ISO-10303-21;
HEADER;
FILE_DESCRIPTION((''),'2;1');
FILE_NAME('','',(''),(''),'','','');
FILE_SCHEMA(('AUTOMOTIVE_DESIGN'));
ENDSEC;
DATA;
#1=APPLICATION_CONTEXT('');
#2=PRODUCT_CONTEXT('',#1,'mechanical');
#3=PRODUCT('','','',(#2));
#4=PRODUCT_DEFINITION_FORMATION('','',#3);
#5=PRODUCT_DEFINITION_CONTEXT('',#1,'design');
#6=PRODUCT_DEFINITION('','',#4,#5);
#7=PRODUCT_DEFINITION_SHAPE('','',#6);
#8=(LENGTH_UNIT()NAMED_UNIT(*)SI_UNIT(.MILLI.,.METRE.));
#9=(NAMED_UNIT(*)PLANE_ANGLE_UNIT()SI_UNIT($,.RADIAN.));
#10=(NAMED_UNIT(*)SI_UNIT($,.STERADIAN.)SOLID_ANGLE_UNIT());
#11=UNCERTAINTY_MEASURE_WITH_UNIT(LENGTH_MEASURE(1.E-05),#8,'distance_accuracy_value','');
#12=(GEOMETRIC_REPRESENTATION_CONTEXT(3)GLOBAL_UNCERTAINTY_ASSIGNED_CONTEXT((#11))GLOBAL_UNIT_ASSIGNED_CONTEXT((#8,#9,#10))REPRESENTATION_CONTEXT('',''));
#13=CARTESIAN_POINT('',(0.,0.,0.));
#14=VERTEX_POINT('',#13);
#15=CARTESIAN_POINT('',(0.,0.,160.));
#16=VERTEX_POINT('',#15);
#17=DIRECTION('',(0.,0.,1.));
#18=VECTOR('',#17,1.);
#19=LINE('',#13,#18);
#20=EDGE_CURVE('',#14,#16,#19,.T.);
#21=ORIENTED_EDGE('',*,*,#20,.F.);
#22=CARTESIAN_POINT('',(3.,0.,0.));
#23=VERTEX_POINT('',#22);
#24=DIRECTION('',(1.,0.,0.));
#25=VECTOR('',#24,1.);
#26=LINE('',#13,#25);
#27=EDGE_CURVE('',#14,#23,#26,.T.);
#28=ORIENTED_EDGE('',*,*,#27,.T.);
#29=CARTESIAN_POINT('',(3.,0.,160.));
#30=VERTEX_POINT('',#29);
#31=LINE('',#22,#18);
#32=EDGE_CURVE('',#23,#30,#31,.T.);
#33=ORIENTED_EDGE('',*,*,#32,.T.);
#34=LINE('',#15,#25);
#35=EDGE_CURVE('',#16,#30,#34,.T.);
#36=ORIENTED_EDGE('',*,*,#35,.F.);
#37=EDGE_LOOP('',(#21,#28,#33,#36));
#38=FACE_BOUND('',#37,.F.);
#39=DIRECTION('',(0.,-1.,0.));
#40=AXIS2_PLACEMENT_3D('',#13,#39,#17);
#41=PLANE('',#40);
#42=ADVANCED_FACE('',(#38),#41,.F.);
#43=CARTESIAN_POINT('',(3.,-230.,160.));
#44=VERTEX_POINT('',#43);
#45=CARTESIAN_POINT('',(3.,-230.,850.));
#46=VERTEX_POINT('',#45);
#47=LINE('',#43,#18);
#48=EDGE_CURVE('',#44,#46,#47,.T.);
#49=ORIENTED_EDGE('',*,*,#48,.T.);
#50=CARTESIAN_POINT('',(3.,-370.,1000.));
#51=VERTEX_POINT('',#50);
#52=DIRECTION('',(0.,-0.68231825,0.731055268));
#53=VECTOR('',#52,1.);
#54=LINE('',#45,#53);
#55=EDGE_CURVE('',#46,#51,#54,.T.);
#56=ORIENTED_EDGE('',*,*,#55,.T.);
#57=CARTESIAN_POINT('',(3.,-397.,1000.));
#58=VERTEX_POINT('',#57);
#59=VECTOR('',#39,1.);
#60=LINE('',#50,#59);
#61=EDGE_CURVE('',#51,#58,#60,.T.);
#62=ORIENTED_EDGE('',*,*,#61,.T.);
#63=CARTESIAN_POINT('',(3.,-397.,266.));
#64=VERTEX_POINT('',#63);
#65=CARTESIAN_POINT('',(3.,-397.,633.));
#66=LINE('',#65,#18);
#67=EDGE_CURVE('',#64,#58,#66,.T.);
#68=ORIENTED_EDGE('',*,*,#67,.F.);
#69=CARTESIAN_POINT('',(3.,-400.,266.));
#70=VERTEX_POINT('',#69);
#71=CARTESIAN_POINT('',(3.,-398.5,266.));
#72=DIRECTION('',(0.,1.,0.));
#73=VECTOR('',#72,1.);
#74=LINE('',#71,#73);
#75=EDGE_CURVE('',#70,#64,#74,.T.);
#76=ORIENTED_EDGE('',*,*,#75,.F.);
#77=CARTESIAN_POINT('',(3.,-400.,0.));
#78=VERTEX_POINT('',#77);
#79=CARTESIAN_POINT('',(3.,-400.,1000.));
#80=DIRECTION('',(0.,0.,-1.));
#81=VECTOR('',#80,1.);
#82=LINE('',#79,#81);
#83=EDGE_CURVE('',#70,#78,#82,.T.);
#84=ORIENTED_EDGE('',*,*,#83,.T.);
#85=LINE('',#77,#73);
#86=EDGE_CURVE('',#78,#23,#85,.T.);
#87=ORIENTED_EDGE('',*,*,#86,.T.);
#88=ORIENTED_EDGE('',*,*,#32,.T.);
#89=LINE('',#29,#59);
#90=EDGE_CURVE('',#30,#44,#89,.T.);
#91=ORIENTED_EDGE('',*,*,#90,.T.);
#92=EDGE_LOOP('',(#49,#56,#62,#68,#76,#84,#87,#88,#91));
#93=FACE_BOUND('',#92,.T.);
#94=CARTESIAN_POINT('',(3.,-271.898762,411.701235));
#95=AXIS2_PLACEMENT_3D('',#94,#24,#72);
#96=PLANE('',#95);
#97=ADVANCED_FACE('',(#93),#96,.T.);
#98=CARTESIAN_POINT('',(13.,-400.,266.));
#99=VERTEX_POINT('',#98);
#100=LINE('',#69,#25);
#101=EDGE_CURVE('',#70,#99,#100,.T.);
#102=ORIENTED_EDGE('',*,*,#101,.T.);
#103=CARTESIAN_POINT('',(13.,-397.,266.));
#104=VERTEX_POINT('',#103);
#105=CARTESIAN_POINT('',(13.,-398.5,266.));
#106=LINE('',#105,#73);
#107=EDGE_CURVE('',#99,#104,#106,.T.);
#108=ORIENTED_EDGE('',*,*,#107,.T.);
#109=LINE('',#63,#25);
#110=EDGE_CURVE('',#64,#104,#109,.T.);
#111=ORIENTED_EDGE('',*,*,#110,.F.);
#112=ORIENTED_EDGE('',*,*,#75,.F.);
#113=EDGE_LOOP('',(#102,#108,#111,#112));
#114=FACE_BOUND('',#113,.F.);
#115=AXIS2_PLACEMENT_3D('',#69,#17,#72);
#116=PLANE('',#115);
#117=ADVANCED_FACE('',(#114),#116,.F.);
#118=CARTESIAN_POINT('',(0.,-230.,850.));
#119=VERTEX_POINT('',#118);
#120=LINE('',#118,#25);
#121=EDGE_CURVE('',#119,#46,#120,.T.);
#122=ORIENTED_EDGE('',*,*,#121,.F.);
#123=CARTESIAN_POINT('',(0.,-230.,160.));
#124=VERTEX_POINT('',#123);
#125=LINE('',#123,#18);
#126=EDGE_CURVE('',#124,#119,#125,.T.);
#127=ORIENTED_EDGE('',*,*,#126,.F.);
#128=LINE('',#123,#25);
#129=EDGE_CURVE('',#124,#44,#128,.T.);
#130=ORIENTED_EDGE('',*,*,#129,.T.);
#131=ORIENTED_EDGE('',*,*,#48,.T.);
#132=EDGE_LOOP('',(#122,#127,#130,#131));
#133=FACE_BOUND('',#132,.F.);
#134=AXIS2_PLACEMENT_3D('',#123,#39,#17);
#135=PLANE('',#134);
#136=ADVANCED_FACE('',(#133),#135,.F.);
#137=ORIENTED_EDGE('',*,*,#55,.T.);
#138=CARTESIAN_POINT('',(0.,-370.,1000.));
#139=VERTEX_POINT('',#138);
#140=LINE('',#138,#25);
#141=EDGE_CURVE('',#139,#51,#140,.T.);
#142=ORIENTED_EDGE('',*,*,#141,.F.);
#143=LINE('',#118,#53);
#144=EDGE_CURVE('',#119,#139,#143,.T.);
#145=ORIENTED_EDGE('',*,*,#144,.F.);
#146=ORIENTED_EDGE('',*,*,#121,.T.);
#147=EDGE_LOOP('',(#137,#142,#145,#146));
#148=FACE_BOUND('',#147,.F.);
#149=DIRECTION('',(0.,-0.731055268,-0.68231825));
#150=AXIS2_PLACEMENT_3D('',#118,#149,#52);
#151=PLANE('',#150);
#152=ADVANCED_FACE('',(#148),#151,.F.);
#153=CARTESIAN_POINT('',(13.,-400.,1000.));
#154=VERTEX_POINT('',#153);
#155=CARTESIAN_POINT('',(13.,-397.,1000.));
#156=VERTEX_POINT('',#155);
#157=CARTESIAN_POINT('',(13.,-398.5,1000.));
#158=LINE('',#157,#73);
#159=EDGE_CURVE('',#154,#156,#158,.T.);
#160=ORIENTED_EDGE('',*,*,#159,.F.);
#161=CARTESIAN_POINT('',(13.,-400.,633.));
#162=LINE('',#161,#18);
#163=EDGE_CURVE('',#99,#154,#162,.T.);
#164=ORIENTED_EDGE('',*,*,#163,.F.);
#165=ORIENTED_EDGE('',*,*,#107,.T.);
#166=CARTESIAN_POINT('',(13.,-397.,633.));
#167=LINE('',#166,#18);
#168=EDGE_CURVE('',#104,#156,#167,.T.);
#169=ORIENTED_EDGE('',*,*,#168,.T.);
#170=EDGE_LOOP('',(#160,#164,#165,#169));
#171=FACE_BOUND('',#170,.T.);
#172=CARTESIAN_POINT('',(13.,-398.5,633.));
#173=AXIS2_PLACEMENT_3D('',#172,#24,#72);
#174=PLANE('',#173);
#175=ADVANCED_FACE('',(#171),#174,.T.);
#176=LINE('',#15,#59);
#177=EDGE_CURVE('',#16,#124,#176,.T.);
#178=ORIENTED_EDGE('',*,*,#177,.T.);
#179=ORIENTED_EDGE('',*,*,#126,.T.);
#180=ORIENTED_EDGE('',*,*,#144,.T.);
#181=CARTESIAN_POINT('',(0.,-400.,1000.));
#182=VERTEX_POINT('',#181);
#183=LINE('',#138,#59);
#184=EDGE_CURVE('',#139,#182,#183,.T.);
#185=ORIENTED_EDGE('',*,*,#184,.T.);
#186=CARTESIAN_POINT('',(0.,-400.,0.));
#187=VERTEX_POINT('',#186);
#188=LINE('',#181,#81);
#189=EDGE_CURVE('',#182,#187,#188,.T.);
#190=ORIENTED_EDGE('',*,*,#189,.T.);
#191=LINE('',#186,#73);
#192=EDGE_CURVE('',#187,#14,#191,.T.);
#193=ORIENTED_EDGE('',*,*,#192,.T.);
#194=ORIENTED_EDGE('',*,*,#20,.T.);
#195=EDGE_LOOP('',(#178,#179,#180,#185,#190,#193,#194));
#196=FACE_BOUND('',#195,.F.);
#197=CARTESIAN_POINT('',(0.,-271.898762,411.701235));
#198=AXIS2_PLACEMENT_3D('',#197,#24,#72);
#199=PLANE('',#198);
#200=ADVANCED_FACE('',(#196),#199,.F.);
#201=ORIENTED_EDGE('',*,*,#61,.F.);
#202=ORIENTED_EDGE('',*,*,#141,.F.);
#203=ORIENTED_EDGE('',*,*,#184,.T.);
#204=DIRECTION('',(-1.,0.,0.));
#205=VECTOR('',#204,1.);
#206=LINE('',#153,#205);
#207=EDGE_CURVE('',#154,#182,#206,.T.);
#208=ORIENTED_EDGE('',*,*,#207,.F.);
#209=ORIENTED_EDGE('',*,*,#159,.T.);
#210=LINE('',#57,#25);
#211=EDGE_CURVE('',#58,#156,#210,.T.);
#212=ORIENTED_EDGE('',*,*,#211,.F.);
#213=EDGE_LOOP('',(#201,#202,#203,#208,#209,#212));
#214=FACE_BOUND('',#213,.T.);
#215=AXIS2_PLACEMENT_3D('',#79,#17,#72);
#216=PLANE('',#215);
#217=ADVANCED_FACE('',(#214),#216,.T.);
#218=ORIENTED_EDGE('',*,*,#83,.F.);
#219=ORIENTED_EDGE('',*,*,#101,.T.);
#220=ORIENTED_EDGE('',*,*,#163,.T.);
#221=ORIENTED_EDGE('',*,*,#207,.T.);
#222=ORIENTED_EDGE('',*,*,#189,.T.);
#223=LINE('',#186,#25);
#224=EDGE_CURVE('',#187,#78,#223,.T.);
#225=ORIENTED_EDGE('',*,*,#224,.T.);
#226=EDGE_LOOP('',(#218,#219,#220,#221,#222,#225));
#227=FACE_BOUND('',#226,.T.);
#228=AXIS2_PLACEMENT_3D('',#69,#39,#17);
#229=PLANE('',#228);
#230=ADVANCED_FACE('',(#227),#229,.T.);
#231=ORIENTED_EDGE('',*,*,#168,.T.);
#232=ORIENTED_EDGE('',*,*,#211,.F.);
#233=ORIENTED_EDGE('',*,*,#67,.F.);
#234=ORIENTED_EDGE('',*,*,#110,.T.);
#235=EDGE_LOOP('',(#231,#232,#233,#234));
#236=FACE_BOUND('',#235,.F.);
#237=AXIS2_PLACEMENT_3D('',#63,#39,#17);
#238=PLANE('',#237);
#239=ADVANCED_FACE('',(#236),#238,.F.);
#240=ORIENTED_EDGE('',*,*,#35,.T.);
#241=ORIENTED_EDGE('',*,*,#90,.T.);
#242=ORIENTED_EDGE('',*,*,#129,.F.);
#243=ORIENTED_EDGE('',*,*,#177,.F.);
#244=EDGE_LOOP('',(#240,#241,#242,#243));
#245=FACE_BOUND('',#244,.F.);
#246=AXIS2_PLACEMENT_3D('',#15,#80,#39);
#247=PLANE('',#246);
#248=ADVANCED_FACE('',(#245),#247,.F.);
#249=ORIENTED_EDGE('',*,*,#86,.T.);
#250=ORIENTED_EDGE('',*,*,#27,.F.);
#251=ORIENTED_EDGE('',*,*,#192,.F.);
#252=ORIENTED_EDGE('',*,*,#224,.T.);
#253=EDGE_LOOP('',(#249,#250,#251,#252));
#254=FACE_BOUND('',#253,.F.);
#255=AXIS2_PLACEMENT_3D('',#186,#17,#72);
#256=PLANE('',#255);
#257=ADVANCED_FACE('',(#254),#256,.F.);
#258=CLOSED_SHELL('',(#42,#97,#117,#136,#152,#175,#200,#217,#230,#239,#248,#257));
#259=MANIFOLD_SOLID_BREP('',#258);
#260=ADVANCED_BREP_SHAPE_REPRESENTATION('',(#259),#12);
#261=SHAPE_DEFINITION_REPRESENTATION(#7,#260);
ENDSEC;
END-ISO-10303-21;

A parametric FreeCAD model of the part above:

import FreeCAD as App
import Part
import Sketcher

V = App.Vector
Q = App.Units.Quantity


def add_polygon(sketch, points):
    """Adds a closed chain of lines whose ends are joined by coincident constraints."""
    first, n = sketch.GeometryCount, len(points)
    for a, b in zip(points, points[1:] + points[:1]):
        sketch.addGeometry(Part.LineSegment(App.Vector(*a, 0), App.Vector(*b, 0)), False)
    for i in range(n):
        sketch.addConstraint(Sketcher.Constraint("Coincident", first + i, 2, first + (i + 1) % n, 1))

doc = App.newDocument("Part")
params = doc.addObject("Spreadsheet::Sheet", "Params")
for row, (alias, value) in enumerate([
    ("sketch1_width", "400 mm"),
    ("sketch1_width2", "230 mm"),
    ("sketch1_width3", "30 mm"),
    ("sketch1_height", "160 mm"),
    ("sketch1_height2", "690 mm"),
    ("pad1_length", "3 mm"),
    ("sketch2_width", "3 mm"),
    ("sketch2_height", "734 mm"),
    ("pad2_length", "10 mm"),
], start=1):
    params.set(f"A{row}", alias)
    params.set(f"B{row}", "=" + value)
    params.setAlias(f"B{row}", alias)

body = doc.addObject("PartDesign::Body", "Body")

# Sketch on YZ plane
sketch1 = body.newObject("Sketcher::SketchObject", "Sketch")
sketch1.AttachmentSupport = (doc.getObject("YZ_Plane"), [""])
sketch1.MapMode = "FlatFace"
add_polygon(sketch1, [(-400, 0), (0, 0), (0, 160), (-230, 160), (-230, 850), (-370, 1000), (-400, 1000)])  # lines 0-6
sketch1.addConstraint([
    Sketcher.Constraint("Horizontal", 0),
    Sketcher.Constraint("Vertical", 1),
    Sketcher.Constraint("Horizontal", 2),
    Sketcher.Constraint("Vertical", 3),
    Sketcher.Constraint("Horizontal", 5),
    Sketcher.Constraint("Vertical", 6),
    Sketcher.Constraint("Coincident", 0, 2, -1, 1),
    Sketcher.Constraint("DistanceX", 0, 1, 0, 2, Q("400 mm")),
    Sketcher.Constraint("DistanceX", 2, 2, 2, 1, Q("230 mm")),
    Sketcher.Constraint("DistanceX", 5, 2, 5, 1, Q("30 mm")),
    Sketcher.Constraint("DistanceY", 1, 1, 1, 2, Q("160 mm")),
    Sketcher.Constraint("DistanceY", 3, 1, 3, 2, Q("690 mm")),
    Sketcher.Constraint("DistanceY", 6, 2, 6, 1, Q("1000 mm")),
])
sketch1.setExpression("Constraints[14]", "Params.sketch1_width")
sketch1.setExpression("Constraints[15]", "Params.sketch1_width2")
sketch1.setExpression("Constraints[16]", "Params.sketch1_width3")
sketch1.setExpression("Constraints[17]", "Params.sketch1_height")
sketch1.setExpression("Constraints[18]", "Params.sketch1_height2")
pad1 = body.newObject("PartDesign::Pad", "Pad")
pad1.Profile = sketch1
pad1.setExpression("Length", "Params.pad1_length")

# Sketch on YZ plane
sketch2 = body.newObject("Sketcher::SketchObject", "Sketch001")
sketch2.AttachmentSupport = (doc.getObject("YZ_Plane"), [""])
sketch2.MapMode = "FlatFace"
sketch2.AttachmentOffset = App.Placement(V(0, 0, 3), App.Rotation())
add_polygon(sketch2, [(-400, 1000), (-400, 266), (-397, 266), (-397, 1000)])  # lines 0-3
sketch2.addConstraint([
    Sketcher.Constraint("Vertical", 0),
    Sketcher.Constraint("Horizontal", 1),
    Sketcher.Constraint("Vertical", 2),
    Sketcher.Constraint("Horizontal", 3),
    Sketcher.Constraint("DistanceX", 1, 1, 1, 2, Q("3 mm")),
    Sketcher.Constraint("DistanceY", 0, 2, 0, 1, Q("734 mm")),
    Sketcher.Constraint("DistanceX", 0, 2, -1, 1, Q("400 mm")),
    Sketcher.Constraint("DistanceY", -1, 1, 0, 2, Q("266 mm")),
])
sketch2.setExpression("Constraints[8]", "Params.sketch2_width")
sketch2.setExpression("Constraints[9]", "Params.sketch2_height")
pad2 = body.newObject("PartDesign::Pad", "Pad001")
pad2.Profile = sketch2
pad2.setExpression("Length", "Params.pad2_length")

doc.recompute()
